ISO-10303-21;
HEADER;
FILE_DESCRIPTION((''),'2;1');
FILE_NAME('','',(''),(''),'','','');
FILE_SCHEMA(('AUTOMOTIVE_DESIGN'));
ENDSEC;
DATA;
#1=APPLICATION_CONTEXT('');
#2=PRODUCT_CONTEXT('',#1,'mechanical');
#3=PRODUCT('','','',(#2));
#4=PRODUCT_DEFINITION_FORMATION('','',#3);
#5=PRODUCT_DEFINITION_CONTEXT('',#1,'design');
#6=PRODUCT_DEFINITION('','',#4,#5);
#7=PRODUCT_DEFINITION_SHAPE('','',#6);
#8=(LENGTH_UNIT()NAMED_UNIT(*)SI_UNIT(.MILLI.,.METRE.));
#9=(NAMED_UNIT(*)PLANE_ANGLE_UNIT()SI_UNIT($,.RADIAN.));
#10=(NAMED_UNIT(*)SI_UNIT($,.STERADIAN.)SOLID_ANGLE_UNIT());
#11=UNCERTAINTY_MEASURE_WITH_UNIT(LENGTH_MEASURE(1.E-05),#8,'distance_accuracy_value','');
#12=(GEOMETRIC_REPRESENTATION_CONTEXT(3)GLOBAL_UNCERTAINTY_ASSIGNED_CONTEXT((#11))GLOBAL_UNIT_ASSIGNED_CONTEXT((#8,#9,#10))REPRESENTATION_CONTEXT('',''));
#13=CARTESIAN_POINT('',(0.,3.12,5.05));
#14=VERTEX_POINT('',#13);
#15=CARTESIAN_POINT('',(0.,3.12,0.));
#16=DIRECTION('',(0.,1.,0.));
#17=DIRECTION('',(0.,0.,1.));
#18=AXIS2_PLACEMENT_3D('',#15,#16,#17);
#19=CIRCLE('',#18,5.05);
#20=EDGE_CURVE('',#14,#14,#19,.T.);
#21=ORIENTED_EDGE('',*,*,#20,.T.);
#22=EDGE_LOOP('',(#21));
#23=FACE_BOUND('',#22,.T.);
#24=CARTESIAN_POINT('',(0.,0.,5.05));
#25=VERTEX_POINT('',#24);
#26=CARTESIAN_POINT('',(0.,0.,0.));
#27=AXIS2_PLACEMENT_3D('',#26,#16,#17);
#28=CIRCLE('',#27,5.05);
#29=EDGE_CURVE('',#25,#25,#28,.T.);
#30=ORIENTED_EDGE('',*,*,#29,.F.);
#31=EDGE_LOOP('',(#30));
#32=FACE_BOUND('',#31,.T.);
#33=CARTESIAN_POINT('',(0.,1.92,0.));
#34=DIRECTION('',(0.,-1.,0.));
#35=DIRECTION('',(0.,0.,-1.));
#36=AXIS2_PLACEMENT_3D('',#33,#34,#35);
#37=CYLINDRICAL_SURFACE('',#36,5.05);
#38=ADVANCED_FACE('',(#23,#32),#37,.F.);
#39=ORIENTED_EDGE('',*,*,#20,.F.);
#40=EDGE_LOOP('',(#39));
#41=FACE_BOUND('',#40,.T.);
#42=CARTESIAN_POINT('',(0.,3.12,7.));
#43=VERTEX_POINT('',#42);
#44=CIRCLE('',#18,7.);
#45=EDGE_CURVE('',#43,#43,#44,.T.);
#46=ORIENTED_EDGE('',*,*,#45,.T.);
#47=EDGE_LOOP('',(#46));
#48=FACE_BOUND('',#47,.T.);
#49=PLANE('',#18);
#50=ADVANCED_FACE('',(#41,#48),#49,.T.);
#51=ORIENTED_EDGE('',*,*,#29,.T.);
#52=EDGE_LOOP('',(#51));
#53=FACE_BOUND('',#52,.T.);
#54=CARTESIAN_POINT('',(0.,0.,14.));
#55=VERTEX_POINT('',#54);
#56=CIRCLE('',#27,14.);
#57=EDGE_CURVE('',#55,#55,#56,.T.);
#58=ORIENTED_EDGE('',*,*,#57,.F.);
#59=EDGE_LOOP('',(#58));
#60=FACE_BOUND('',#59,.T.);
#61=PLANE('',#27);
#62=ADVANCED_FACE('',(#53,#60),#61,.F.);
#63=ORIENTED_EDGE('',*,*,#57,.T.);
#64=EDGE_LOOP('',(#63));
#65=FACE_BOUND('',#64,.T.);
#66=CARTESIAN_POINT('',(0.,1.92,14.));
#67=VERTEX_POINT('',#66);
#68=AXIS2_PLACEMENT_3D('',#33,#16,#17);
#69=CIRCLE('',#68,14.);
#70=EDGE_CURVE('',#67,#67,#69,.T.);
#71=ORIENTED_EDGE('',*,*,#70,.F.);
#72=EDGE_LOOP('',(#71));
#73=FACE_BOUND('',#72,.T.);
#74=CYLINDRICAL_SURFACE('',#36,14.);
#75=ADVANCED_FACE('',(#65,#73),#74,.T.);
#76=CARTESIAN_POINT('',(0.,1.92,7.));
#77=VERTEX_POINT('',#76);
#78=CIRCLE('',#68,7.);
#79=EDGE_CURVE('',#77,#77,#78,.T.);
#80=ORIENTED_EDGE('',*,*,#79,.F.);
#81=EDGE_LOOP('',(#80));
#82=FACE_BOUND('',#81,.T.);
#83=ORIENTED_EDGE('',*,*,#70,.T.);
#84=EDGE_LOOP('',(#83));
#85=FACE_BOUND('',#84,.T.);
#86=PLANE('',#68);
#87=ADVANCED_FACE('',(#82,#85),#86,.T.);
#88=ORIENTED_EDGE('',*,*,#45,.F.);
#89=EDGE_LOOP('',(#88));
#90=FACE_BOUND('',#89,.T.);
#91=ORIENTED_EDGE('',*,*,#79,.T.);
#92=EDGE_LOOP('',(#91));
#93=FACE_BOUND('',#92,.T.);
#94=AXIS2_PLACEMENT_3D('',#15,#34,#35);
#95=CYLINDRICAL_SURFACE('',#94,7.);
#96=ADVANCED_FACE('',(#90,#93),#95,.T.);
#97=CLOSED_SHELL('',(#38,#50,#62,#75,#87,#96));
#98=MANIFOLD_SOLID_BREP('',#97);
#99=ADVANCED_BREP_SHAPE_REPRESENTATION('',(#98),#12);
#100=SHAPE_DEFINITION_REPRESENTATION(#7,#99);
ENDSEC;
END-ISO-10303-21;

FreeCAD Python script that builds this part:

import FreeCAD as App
import Part
import Sketcher
Q = App.Units.Quantity

doc = App.newDocument("Part")
body = doc.addObject("PartDesign::Body", "Body")

# Sketch on XZ plane
sketch1 = body.newObject("Sketcher::SketchObject", "Sketch")
sketch1.AttachmentSupport = (doc.getObject("XZ_Plane"), [""])
sketch1.MapMode = "FlatFace"
sketch1.addGeometry([
    Part.Circle(App.Vector(0, 0, 0), App.Vector(0, 0, 1), 14),
    Part.Circle(App.Vector(0, 0, 0), App.Vector(0, 0, 1), 5.05),
], False)
sketch1.addConstraint([
    Sketcher.Constraint("Coincident", 0, 3, -1, 1),
    Sketcher.Constraint("Coincident", 1, 3, -1, 1),
    Sketcher.Constraint("Diameter", 0, Q("28 mm")),
    Sketcher.Constraint("Diameter", 1, Q("10.1 mm")),
])
pad1 = body.newObject("PartDesign::Pad", "Pad")
pad1.Profile = sketch1
pad1.Length = 1.92
pad1.Reversed = True

# Sketch on XZ plane
sketch2 = body.newObject("Sketcher::SketchObject", "Sketch001")
sketch2.AttachmentSupport = (doc.getObject("XZ_Plane"), [""])
sketch2.MapMode = "FlatFace"
sketch2.AttachmentOffset = App.Placement(App.Vector(0, 0, -1.92), App.Rotation())
sketch2.addGeometry([
    Part.Circle(App.Vector(0, 0, 0), App.Vector(0, 0, 1), 7),
    Part.Circle(App.Vector(0, 0, 0), App.Vector(0, 0, 1), 5.05),
], False)
sketch2.addConstraint([
    Sketcher.Constraint("Coincident", 0, 3, -1, 1),
    Sketcher.Constraint("Coincident", 1, 3, -1, 1),
    Sketcher.Constraint("Diameter", 0, Q("14 mm")),
    Sketcher.Constraint("Diameter", 1, Q("10.1 mm")),
])
pad2 = body.newObject("PartDesign::Pad", "Pad001")
pad2.Profile = sketch2
pad2.Length = 1.2
pad2.Reversed = True

doc.recompute()
